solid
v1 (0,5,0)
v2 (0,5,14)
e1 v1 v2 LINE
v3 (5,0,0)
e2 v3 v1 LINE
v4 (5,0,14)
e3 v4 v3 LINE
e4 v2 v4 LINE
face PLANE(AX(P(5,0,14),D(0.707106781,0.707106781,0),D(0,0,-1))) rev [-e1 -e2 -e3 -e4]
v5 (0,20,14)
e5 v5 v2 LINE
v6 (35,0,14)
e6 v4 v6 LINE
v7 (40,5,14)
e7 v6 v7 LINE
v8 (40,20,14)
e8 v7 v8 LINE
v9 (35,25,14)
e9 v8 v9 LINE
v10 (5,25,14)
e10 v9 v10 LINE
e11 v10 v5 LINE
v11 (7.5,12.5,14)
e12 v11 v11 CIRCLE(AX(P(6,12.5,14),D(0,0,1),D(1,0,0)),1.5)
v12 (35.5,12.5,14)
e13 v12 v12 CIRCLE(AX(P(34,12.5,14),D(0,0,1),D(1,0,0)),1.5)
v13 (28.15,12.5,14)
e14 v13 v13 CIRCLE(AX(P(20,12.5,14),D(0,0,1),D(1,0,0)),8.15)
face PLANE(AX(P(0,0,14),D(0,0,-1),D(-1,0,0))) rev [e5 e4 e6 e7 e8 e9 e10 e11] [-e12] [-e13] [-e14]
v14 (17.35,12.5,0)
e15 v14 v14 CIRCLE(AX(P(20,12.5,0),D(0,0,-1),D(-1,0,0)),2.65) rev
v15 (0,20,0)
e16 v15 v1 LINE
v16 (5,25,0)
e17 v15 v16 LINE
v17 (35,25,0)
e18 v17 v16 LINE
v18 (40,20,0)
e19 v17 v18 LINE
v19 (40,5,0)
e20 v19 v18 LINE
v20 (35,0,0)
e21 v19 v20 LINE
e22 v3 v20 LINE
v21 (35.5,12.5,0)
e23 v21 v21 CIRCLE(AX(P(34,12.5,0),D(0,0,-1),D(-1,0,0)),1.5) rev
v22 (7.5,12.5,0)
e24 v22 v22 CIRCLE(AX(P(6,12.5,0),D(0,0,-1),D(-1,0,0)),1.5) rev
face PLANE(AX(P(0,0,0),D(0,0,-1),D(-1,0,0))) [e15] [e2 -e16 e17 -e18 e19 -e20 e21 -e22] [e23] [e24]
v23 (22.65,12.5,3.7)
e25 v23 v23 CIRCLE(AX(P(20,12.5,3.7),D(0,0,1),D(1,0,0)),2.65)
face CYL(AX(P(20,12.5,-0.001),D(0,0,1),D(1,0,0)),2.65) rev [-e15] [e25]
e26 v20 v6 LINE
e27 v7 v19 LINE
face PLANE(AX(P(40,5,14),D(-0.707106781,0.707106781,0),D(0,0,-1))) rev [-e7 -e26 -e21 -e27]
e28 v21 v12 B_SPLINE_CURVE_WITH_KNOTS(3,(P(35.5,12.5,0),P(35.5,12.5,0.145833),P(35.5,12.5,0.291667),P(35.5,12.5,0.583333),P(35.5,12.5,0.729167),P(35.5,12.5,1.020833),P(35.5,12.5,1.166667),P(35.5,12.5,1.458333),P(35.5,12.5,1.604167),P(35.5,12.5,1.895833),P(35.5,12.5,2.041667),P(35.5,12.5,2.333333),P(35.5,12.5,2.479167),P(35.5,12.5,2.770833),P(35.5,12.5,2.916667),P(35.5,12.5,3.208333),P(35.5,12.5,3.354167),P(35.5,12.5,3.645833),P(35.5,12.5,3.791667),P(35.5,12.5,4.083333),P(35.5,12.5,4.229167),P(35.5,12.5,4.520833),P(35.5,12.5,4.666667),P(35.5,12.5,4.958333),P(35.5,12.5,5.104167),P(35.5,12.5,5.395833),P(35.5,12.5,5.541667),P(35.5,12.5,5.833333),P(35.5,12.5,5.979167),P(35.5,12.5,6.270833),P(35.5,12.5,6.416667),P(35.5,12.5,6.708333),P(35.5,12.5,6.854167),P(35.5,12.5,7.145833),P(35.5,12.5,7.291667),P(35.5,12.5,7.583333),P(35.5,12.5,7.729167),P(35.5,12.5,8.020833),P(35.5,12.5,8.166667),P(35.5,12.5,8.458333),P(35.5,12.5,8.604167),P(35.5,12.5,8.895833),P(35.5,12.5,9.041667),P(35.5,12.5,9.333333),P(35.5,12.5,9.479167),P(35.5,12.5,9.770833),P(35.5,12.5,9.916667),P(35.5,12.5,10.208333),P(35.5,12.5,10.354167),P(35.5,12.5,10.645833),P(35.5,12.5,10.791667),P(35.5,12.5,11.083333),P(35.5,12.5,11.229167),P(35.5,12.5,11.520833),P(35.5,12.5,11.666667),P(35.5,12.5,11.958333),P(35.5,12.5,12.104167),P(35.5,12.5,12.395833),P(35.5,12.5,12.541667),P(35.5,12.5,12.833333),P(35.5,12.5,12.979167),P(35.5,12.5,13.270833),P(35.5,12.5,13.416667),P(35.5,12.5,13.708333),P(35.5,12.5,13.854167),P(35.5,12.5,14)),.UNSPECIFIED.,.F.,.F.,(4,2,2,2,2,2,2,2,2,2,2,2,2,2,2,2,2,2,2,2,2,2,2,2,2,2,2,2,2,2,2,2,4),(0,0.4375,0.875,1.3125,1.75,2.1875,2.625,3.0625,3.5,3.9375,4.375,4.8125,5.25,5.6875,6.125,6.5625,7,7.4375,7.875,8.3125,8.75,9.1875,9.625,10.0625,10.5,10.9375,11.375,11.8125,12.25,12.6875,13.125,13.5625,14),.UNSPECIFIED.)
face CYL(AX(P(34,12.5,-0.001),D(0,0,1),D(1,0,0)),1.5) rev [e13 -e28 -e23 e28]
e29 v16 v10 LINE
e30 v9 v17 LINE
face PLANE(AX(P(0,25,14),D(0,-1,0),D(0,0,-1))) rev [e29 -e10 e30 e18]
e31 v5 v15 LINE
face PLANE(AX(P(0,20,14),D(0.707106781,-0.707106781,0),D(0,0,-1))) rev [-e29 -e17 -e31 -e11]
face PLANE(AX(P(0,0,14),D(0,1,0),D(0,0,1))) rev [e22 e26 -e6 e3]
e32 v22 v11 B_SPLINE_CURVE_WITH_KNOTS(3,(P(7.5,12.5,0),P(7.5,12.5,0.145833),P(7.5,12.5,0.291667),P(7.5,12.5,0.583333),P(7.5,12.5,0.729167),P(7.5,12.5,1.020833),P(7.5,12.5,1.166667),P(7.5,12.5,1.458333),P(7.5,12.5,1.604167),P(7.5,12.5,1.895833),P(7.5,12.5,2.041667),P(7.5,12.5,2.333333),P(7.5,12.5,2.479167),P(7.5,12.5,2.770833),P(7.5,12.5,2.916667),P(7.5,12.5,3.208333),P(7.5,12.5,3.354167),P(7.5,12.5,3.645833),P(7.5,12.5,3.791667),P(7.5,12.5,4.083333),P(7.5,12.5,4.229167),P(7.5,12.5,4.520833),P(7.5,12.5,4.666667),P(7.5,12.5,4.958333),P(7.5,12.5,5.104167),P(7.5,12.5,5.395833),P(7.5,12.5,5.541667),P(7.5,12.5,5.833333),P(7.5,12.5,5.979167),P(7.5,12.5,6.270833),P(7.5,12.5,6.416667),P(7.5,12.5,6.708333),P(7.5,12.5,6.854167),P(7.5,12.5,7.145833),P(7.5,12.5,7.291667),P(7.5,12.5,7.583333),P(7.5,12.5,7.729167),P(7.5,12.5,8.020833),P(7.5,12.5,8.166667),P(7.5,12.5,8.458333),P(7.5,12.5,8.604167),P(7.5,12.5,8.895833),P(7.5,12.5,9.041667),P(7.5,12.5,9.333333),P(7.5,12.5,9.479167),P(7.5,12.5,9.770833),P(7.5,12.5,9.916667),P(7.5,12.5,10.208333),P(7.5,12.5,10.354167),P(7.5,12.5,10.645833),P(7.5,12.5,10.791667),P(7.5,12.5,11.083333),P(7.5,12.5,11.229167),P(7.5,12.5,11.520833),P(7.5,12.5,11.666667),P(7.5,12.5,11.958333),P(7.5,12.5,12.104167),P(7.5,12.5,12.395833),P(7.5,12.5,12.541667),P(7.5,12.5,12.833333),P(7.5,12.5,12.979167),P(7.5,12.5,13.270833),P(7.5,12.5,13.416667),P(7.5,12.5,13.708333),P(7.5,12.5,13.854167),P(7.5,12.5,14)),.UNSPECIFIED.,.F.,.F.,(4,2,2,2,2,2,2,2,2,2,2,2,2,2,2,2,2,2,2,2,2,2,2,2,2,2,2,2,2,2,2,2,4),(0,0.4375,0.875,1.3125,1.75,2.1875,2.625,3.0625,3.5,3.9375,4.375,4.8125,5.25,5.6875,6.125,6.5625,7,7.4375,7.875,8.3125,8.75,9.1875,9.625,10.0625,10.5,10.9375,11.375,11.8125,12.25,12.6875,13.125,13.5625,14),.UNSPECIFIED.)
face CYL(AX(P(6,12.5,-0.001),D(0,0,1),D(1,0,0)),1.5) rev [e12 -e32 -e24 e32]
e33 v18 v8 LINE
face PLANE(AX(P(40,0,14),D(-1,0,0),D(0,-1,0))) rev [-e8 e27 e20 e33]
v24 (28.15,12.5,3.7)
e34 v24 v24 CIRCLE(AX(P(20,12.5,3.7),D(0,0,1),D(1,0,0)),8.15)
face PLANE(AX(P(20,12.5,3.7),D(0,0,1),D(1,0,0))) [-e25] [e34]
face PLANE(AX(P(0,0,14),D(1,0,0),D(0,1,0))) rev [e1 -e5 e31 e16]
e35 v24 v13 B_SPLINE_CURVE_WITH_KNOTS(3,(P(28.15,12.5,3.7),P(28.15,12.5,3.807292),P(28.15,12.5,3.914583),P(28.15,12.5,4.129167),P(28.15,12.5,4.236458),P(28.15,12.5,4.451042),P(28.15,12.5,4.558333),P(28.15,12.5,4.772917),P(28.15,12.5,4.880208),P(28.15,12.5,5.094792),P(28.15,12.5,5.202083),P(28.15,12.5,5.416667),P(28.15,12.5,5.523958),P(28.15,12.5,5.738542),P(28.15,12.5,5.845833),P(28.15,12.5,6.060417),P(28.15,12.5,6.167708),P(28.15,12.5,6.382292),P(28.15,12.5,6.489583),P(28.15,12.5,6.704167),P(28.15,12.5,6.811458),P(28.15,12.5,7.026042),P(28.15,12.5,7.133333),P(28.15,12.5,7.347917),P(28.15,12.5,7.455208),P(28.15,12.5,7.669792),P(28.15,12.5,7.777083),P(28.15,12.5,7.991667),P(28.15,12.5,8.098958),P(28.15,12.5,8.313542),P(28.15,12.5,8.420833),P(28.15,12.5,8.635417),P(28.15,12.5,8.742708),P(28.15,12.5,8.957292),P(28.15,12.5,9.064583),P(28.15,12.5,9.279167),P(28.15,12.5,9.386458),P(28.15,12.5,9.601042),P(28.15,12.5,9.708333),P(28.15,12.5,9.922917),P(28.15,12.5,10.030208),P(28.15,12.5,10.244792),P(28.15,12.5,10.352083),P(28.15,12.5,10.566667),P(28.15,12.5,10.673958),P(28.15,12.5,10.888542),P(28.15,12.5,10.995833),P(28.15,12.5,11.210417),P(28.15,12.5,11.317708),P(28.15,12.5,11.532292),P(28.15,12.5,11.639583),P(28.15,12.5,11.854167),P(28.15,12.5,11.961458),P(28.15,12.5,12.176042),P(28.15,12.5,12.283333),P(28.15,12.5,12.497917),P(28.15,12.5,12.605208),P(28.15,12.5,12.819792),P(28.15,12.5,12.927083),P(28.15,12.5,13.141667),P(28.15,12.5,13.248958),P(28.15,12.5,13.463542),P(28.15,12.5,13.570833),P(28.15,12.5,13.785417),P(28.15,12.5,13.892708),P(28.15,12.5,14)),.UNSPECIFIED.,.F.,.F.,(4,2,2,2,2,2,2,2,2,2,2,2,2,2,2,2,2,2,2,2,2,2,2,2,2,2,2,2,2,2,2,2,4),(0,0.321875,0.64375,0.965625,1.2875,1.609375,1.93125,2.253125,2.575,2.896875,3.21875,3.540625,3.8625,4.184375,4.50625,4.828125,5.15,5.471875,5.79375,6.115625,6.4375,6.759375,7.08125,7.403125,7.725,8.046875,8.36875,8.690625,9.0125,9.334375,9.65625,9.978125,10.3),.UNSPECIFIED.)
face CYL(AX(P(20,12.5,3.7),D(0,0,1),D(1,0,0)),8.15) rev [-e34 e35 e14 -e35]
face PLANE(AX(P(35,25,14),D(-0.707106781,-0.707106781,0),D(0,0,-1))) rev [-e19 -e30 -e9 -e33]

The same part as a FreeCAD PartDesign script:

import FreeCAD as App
import Part
import Sketcher
from FreeCAD import Vector
Q = App.Units.Quantity


def edges_at(feature, points):
    """Names of the edges that pass closest to the given points."""
    edges = feature.Shape.Edges
    near = lambda p: min(range(len(edges)), key=lambda i: edges[i].distToShape(Part.Vertex(*p))[0])
    return sorted({f"Edge{near(p) + 1}" for p in points})

doc = App.newDocument("Part")
body = doc.addObject("PartDesign::Body", "Body")

sketch1 = body.newObject("Sketcher::SketchObject", "Sketch")
sketch1.AttachmentSupport = (doc.getObject("XY_Plane"), [""])
sketch1.MapMode = "FlatFace"
sketch1.addGeometry([
    Part.LineSegment(Vector(0, 25, 0), Vector(0, 0, 0)),
    Part.LineSegment(Vector(0, 0, 0), Vector(40, 0, 0)),
    Part.LineSegment(Vector(40, 0, 0), Vector(40, 25, 0)),
    Part.LineSegment(Vector(40, 25, 0), Vector(0, 25, 0)),
], False)
sketch1.addConstraint([
    Sketcher.Constraint("Coincident", 0, 2, 1, 1),
    Sketcher.Constraint("Coincident", 1, 2, 2, 1),
    Sketcher.Constraint("Coincident", 2, 2, 3, 1),
    Sketcher.Constraint("Coincident", 3, 2, 0, 1),
    Sketcher.Constraint("Vertical", 0),
    Sketcher.Constraint("Horizontal", 1),
    Sketcher.Constraint("Vertical", 2),
    Sketcher.Constraint("Horizontal", 3),
    Sketcher.Constraint("Coincident", 0, 2, -1, 1),
    Sketcher.Constraint("DistanceX", 1, 1, 1, 2, Q("40 mm")),
    Sketcher.Constraint("DistanceY", 0, 2, 0, 1, Q("25 mm")),
])
pad1 = body.newObject("PartDesign::Pad", "Pad")
pad1.Profile = sketch1
pad1.Length = 14

sketch2 = body.newObject("Sketcher::SketchObject", "Sketch001")
sketch2.AttachmentSupport = (doc.getObject("XY_Plane"), [""])
sketch2.MapMode = "FlatFace"
sketch2.AttachmentOffset = App.Placement(Vector(0, 0, 14), App.Rotation())
sketch2.addGeometry(Part.Circle(Vector(20, 12, 0), Vector(0, 0, 1), 8), False)
sketch2.addConstraint([
    Sketcher.Constraint("Diameter", 0, Q("16.3 mm")),
    Sketcher.Constraint("DistanceX", -1, 1, 0, 3, Q("20 mm")),
    Sketcher.Constraint("DistanceY", -1, 1, 0, 3, Q("12.5 mm")),
])
pocket1 = body.newObject("PartDesign::Pocket", "Pocket")
pocket1.Profile = sketch2
pocket1.Length = 10.3

sketch3 = body.newObject("Sketcher::SketchObject", "Sketch002")
sketch3.AttachmentSupport = (doc.getObject("XY_Plane"), [""])
sketch3.MapMode = "FlatFace"
sketch3.AttachmentOffset = App.Placement(Vector(0, 0, 3.7), App.Rotation())
sketch3.addGeometry(Part.Circle(Vector(20, 12.5, 0), Vector(0, 0, 1), 2.6), False)
sketch3.addConstraint([
    Sketcher.Constraint("Diameter", 0, Q("5.3 mm")),
    Sketcher.Constraint("DistanceX", -1, 1, 0, 3, Q("20 mm")),
    Sketcher.Constraint("DistanceY", -1, 1, 0, 3, Q("12.5 mm")),
])
pocket2 = body.newObject("PartDesign::Pocket", "Pocket001")
pocket2.Profile = sketch3
pocket2.Type = "UpToFirst"

sketch4 = body.newObject("Sketcher::SketchObject", "Sketch003")
sketch4.AttachmentSupport = (doc.getObject("XY_Plane"), [""])
sketch4.MapMode = "FlatFace"
sketch4.AttachmentOffset = App.Placement(Vector(0, 0, 14), App.Rotation())
sketch4.addGeometry(Part.Circle(Vector(6, 12.5, 0), Vector(0, 0, 1), 1.5), False)
sketch4.addConstraint([
    Sketcher.Constraint("Diameter", 0, Q("3 mm")),
    Sketcher.Constraint("DistanceX", -1, 1, 0, 3, Q("6 mm")),
    Sketcher.Constraint("DistanceY", -1, 1, 0, 3, Q("12.5 mm")),
])
pocket3 = body.newObject("PartDesign::Pocket", "Pocket002")
pocket3.Profile = sketch4
pocket3.Type = "UpToFirst"

sketch5 = body.newObject("Sketcher::SketchObject", "Sketch004")
sketch5.AttachmentSupport = (doc.getObject("XY_Plane"), [""])
sketch5.MapMode = "FlatFace"
sketch5.AttachmentOffset = App.Placement(Vector(0, 0, 14), App.Rotation())
sketch5.addGeometry(Part.Circle(Vector(34, 12.5, 0), Vector(0, 0, 1), 1.5), False)
sketch5.addConstraint([
    Sketcher.Constraint("Diameter", 0, Q("3 mm")),
    Sketcher.Constraint("DistanceX", -1, 1, 0, 3, Q("34 mm")),
    Sketcher.Constraint("DistanceY", -1, 1, 0, 3, Q("12.5 mm")),
])
pocket4 = body.newObject("PartDesign::Pocket", "Pocket003")
pocket4.Profile = sketch5
pocket4.Type = "UpToFirst"
doc.recompute()

chamfer = body.newObject("PartDesign::Chamfer", "Chamfer")
chamfer.Base = (pocket4, edges_at(pocket4, [
    (0, 25, 7),
    (40, 25, 7),
    (40, 0, 7),
    (0, 0, 7),
]))
chamfer.Size = 5

doc.recompute()
